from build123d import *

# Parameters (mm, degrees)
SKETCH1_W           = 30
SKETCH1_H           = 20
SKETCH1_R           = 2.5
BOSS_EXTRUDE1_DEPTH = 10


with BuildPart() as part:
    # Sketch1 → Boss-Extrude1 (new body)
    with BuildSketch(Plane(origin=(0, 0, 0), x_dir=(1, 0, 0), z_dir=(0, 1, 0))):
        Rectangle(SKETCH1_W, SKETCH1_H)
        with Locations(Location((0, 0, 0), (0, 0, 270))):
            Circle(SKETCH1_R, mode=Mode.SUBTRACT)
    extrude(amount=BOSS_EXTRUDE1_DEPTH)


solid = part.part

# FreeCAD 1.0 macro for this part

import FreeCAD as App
import Part
import Sketcher
from FreeCAD import Vector
Q = App.Units.Quantity


def add_polygon(sketch, points):
    """Adds a closed chain of lines whose ends are joined by coincident constraints."""
    first, n = sketch.GeometryCount, len(points)
    for a, b in zip(points, points[1:] + points[:1]):
        sketch.addGeometry(Part.LineSegment(App.Vector(*a, 0), App.Vector(*b, 0)), False)
    for i in range(n):
        sketch.addConstraint(Sketcher.Constraint("Coincident", first + i, 2, first + (i + 1) % n, 1))

doc = App.newDocument("Part")
body = doc.addObject("PartDesign::Body", "Body")

# Sketch on XZ plane
sketch1 = body.newObject("Sketcher::SketchObject", "Sketch")
sketch1.AttachmentSupport = (doc.getObject("XZ_Plane"), [""])
sketch1.MapMode = "FlatFace"
add_polygon(sketch1, [(-15, -10), (-15, 10), (15, 10), (15, -10)])  # lines 0-3
sketch1.addGeometry(Part.Circle(Vector(0, 0, 0), Vector(0, 0, 1), 2.5), False)  # 4
sketch1.addConstraint([
    Sketcher.Constraint("Vertical", 0),
    Sketcher.Constraint("Horizontal", 1),
    Sketcher.Constraint("Vertical", 2),
    Sketcher.Constraint("Horizontal", 3),
    Sketcher.Constraint("Coincident", 4, 3, -1, 1),
    Sketcher.Constraint("Symmetric", 0, 2, 2, 2, -1, 1),
    Sketcher.Constraint("Diameter", 4, Q("5 mm")),
    Sketcher.Constraint("DistanceX", 1, 1, 1, 2, Q("30 mm")),
    Sketcher.Constraint("DistanceY", 0, 1, 0, 2, Q("20 mm")),
])
pad1 = body.newObject("PartDesign::Pad", "Pad")
pad1.Profile = sketch1
pad1.Length = 10
pad1.Reversed = True

doc.recompute()
